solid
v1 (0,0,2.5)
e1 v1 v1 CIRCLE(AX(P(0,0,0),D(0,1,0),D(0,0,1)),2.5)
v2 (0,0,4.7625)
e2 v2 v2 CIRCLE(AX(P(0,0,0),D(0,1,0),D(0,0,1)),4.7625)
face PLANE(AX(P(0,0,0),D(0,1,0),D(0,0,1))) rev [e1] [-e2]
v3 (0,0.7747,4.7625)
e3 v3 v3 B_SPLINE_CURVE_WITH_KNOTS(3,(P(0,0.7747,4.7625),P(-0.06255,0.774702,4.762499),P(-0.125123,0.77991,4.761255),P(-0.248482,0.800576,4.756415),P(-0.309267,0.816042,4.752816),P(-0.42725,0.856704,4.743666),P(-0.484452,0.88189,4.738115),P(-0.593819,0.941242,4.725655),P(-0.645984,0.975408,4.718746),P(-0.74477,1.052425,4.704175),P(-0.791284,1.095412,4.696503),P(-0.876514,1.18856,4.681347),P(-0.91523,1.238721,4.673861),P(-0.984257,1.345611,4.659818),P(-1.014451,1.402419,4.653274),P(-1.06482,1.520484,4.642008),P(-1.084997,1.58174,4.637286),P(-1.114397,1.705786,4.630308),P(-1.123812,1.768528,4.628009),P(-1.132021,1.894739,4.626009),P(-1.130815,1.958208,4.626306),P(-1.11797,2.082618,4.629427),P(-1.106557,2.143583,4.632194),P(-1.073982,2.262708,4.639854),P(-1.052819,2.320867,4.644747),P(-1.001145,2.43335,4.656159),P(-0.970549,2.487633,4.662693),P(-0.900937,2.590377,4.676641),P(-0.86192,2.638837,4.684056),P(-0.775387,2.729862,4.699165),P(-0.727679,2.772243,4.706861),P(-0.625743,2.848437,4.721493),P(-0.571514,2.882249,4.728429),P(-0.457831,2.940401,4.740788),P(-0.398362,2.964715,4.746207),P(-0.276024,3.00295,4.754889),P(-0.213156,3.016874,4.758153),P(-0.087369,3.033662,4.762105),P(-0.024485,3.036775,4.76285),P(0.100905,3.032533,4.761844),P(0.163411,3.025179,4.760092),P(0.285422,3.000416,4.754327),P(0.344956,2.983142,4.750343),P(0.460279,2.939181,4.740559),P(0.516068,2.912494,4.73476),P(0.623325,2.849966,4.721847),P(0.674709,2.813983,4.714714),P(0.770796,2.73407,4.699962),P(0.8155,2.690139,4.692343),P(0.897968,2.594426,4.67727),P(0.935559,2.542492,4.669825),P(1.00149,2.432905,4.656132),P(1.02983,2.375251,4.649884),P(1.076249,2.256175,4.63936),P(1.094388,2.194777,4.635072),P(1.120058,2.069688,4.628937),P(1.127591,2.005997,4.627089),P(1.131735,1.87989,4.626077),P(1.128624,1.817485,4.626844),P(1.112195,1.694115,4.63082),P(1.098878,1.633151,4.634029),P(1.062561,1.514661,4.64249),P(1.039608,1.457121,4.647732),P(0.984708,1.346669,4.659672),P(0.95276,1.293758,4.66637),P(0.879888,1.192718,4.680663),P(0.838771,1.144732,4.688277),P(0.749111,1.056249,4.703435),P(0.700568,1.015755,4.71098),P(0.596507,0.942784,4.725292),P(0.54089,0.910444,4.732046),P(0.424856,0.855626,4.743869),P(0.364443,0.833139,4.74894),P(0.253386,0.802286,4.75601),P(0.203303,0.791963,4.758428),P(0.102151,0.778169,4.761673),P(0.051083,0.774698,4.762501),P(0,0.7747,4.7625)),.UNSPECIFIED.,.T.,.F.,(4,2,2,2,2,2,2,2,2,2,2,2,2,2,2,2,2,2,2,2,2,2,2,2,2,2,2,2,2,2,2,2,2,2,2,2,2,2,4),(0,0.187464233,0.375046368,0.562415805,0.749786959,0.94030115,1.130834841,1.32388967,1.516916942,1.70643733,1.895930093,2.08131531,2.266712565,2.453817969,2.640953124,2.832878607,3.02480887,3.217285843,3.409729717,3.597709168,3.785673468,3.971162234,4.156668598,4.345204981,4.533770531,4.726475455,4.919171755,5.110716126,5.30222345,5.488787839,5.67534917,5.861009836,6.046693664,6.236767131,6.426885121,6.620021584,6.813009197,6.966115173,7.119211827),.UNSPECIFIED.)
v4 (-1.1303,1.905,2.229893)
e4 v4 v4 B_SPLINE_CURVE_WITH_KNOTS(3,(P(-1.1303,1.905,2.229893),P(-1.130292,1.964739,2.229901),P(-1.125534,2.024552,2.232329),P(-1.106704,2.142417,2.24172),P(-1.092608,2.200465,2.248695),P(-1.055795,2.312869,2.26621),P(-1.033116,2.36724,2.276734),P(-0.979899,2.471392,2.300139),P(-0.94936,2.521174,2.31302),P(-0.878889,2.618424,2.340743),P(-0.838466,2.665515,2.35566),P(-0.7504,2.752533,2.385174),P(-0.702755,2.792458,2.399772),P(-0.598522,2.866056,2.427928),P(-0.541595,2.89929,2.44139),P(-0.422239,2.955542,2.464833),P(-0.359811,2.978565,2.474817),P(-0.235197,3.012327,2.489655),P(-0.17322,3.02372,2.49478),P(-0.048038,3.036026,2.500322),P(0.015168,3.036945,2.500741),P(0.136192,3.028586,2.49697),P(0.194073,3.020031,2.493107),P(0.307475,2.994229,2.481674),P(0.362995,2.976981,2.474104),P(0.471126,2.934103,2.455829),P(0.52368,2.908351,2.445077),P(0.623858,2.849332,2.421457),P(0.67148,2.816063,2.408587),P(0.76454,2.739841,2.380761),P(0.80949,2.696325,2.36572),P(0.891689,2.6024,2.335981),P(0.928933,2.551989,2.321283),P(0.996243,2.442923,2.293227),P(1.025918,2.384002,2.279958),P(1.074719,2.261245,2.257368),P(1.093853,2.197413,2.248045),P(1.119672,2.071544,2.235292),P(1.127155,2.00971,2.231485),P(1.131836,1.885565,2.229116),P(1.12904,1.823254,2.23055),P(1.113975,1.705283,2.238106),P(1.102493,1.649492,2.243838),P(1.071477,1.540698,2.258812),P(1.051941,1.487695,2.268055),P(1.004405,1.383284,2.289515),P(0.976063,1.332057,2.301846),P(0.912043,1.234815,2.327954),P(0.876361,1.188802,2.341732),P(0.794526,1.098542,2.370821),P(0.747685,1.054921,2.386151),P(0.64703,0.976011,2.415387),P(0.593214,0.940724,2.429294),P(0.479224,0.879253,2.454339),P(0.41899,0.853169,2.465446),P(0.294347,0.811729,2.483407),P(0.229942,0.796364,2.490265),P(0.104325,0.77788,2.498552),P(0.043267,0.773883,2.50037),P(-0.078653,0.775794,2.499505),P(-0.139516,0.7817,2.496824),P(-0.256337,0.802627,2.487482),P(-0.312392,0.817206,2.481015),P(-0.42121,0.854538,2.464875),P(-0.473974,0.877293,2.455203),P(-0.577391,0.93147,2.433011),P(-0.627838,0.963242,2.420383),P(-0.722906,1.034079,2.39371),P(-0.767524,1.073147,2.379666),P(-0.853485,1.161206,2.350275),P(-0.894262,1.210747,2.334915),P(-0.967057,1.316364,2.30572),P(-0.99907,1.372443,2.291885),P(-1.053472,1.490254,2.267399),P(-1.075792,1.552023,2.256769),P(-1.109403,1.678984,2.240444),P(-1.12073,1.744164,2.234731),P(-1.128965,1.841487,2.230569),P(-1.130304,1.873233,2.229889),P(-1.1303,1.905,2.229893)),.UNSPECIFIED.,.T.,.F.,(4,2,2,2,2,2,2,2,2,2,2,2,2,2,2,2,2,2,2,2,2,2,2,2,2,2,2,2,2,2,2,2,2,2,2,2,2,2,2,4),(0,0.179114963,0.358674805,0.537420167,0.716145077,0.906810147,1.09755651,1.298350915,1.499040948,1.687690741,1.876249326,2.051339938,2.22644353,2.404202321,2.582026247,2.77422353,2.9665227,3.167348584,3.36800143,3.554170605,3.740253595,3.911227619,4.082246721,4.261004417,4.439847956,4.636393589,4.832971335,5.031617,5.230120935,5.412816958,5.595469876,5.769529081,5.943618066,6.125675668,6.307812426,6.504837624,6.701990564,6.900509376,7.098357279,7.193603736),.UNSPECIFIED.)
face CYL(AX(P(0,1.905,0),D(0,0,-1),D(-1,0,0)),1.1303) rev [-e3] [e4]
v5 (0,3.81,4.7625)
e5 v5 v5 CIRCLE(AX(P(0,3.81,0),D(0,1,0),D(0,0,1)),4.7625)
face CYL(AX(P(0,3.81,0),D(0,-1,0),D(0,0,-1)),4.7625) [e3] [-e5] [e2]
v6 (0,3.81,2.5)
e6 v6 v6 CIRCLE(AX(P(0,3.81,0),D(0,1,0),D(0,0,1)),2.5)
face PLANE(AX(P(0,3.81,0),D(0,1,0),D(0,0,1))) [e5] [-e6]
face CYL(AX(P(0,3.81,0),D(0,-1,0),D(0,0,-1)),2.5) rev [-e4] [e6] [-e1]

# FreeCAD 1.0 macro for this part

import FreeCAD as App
import Part
import Sketcher
from FreeCAD import Vector
Q = App.Units.Quantity


def add_polygon(sketch, points):
    """Adds a closed chain of lines whose ends are joined by coincident constraints."""
    first, n = sketch.GeometryCount, len(points)
    for a, b in zip(points, points[1:] + points[:1]):
        sketch.addGeometry(Part.LineSegment(App.Vector(*a, 0), App.Vector(*b, 0)), False)
    for i in range(n):
        sketch.addConstraint(Sketcher.Constraint("Coincident", first + i, 2, first + (i + 1) % n, 1))

doc = App.newDocument("Part")
body = doc.addObject("PartDesign::Body", "Body")

# Sketch on XZ plane
sketch1 = body.newObject("Sketcher::SketchObject", "Sketch")
sketch1.AttachmentSupport = (doc.getObject("XZ_Plane"), [""])
sketch1.MapMode = "FlatFace"
sketch1.addGeometry([
    Part.Circle(Vector(0, 0, 0), Vector(0, 0, 1), 4.7625),
    Part.Circle(Vector(0, 0, 0), Vector(0, 0, 1), 2.5),
], False)
sketch1.addConstraint([
    Sketcher.Constraint("Coincident", 0, 3, -1, 1),
    Sketcher.Constraint("Coincident", 1, 3, -1, 1),
    Sketcher.Constraint("Diameter", 0, Q("0.375 in")),
    Sketcher.Constraint("Diameter", 1, 5.0),
])
pad1 = body.newObject("PartDesign::Pad", "Pad")
pad1.Profile = sketch1
pad1.Length = Q("0.15 in")
pad1.Reversed = True

# Sketch on YZ plane
sketch2 = body.newObject("Sketcher::SketchObject", "Sketch001")
sketch2.AttachmentSupport = (doc.getObject("YZ_Plane"), [""])
sketch2.MapMode = "FlatFace"
add_polygon(sketch2, [(1.905, 4.7625), (1.905, 0), (3.0353, 0), (3.0353, 4.7625)])  # lines 0-3
sketch2.addGeometry(Part.LineSegment(Vector(1.905, 0, 0), Vector(1.905, 4.7625, 0)), True)  # axis
sketch2.addConstraint([
    Sketcher.Constraint("Vertical", 0),
    Sketcher.Constraint("Horizontal", 1),
    Sketcher.Constraint("Vertical", 2),
    Sketcher.Constraint("Horizontal", 3),
    Sketcher.Constraint("Vertical", 4),
    Sketcher.Constraint("Coincident", 4, 1, 0, 2),
    Sketcher.Constraint("PointOnObject", 0, 2, -1),
    Sketcher.Constraint("Horizontal", 2, 2, 4, 2),
    Sketcher.Constraint("DistanceY", 0, 2, 0, 1, Q("0.1875 in")),
    Sketcher.Constraint("DistanceX", 1, 1, 1, 2, Q("0.0445 in")),
    Sketcher.Constraint("DistanceX", -1, 1, 0, 2, Q("0.075 in")),
])
groove = body.newObject("PartDesign::Groove", "Groove")
groove.Profile = sketch2
groove.ReferenceAxis = (sketch2, ["Axis0"])
groove.Angle = 360

doc.recompute()
